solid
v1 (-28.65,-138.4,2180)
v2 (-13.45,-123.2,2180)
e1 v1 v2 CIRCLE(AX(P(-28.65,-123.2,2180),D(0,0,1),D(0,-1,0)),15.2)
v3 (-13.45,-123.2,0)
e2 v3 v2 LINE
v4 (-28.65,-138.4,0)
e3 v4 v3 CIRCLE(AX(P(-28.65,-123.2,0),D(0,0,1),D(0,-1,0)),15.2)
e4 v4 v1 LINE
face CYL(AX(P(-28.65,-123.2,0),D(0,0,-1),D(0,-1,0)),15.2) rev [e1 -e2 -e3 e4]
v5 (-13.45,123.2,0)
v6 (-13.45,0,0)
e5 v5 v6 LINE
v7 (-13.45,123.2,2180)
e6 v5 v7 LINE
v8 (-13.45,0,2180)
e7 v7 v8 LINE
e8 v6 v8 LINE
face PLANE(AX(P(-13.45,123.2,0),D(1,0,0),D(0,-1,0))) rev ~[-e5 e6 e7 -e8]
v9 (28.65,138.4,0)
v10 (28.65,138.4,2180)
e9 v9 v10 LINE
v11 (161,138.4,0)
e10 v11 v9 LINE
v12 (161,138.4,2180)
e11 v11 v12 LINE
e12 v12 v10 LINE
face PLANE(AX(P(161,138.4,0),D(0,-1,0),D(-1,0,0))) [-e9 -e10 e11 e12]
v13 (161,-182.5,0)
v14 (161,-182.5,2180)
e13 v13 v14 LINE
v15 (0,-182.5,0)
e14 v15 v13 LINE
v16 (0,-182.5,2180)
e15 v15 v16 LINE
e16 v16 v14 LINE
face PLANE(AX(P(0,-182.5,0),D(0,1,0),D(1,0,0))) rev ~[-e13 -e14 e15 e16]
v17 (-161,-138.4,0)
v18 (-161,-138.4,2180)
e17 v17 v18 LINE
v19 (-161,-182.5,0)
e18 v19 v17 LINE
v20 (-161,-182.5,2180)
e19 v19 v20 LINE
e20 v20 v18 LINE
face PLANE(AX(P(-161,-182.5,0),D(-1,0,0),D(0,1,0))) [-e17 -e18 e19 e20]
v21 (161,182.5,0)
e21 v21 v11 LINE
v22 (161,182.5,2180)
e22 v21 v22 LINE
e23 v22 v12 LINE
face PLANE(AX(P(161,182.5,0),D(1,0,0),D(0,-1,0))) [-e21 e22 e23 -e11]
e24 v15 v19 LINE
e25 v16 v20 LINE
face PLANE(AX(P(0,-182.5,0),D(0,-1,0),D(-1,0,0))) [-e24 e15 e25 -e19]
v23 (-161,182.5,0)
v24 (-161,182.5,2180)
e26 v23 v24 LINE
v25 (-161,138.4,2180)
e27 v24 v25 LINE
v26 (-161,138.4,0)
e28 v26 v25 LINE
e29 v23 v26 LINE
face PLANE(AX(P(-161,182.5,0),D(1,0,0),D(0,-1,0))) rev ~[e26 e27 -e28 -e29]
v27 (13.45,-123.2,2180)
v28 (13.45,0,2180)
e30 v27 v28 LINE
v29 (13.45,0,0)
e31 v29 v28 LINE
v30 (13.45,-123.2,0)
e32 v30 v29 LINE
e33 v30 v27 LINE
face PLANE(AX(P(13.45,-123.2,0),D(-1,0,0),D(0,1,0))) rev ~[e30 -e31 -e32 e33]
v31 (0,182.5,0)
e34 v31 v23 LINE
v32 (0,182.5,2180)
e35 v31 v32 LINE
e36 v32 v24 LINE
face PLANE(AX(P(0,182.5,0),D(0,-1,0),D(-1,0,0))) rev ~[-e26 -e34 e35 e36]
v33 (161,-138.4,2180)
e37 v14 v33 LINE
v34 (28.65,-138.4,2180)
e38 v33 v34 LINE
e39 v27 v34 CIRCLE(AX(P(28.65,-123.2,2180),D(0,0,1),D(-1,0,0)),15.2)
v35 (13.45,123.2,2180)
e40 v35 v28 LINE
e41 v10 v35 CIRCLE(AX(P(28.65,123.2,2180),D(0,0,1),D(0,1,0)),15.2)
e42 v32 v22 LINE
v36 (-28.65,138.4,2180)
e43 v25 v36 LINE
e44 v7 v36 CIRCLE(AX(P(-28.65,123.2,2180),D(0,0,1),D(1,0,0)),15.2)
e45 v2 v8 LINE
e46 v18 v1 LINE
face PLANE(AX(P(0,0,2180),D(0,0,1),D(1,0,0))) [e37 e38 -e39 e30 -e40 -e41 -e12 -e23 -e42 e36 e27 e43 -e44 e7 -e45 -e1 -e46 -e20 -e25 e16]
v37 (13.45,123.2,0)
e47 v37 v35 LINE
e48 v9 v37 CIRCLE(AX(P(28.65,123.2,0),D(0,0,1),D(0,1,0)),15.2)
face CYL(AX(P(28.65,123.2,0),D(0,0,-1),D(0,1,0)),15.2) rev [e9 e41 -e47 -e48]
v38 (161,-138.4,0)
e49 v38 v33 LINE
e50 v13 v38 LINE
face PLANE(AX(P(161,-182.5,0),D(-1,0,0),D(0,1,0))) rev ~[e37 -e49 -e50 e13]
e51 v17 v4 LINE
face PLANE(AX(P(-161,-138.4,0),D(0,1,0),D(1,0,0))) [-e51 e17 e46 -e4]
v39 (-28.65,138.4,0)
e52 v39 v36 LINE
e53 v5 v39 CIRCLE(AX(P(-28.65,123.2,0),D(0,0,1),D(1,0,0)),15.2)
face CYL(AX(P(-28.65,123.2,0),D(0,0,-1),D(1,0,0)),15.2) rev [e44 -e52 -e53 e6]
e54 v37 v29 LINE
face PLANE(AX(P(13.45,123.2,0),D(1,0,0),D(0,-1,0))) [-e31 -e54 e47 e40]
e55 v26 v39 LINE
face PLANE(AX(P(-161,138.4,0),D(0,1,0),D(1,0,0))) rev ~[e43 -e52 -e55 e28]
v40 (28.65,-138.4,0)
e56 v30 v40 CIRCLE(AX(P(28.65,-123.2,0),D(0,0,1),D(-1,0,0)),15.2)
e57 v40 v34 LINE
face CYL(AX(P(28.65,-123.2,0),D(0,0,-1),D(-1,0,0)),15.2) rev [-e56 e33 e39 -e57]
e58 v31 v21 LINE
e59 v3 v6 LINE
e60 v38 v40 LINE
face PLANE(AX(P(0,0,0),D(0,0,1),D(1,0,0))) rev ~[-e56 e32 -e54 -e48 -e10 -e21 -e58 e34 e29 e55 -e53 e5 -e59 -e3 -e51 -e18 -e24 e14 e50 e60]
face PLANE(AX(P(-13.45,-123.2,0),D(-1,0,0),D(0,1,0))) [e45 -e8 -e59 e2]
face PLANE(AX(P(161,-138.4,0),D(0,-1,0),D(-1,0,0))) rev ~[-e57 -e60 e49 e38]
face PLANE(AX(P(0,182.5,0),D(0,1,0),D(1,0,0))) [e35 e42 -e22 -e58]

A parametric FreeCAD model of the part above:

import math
import FreeCAD as App
import Part
import Sketcher

V = App.Vector
Q = App.Units.Quantity

doc = App.newDocument("Part")
body = doc.addObject("PartDesign::Body", "Body")

sketch1 = body.newObject("Sketcher::SketchObject", "Sketch")
sketch1.AttachmentSupport = (doc.getObject("XY_Plane"), [""])
sketch1.MapMode = "FlatFace"
sketch1.addGeometry([
    Part.LineSegment(V(-161, -138, 0), V(-161, -182, 0)),
    Part.LineSegment(V(-161, -182, 0), V(161, -182, 0)),
    Part.LineSegment(V(161, -182, 0), V(161, -138, 0)),
    Part.LineSegment(V(161, -138, 0), V(29, -138, 0)),
    Part.ArcOfCircle(Part.Circle(V(29, -123, 0), V(0, 0, 1), 15), math.radians(180), math.radians(270)),
    Part.LineSegment(V(13, -123, 0), V(13, 123, 0)),
    Part.ArcOfCircle(Part.Circle(V(29, 123, 0), V(0, 0, 1), 15), math.radians(90), math.radians(180)),
    Part.LineSegment(V(29, 138, 0), V(161, 138, 0)),
    Part.LineSegment(V(161, 138, 0), V(161, 182, 0)),
    Part.LineSegment(V(161, 182, 0), V(-161, 182, 0)),
    Part.LineSegment(V(-161, 182, 0), V(-161, 138, 0)),
    Part.LineSegment(V(-161, 138, 0), V(-29, 138, 0)),
    Part.ArcOfCircle(Part.Circle(V(-29, 123, 0), V(0, 0, 1), 15), math.radians(0), math.radians(90)),
    Part.LineSegment(V(-13, 123, 0), V(-13, -123, 0)),
    Part.ArcOfCircle(Part.Circle(V(-29, -123, 0), V(0, 0, 1), 15), math.radians(-90), math.radians(0)),
    Part.LineSegment(V(-29, -138, 0), V(-161, -138, 0)),
], False)
sketch1.addConstraint([
    Sketcher.Constraint("Coincident", 0, 2, 1, 1),
    Sketcher.Constraint("Coincident", 1, 2, 2, 1),
    Sketcher.Constraint("Coincident", 2, 2, 3, 1),
    Sketcher.Constraint("Tangent", 3, 2, 4, 2),
    Sketcher.Constraint("Tangent", 4, 1, 5, 1),
    Sketcher.Constraint("Tangent", 5, 2, 6, 2),
    Sketcher.Constraint("Tangent", 6, 1, 7, 1),
    Sketcher.Constraint("Coincident", 7, 2, 8, 1),
    Sketcher.Constraint("Coincident", 8, 2, 9, 1),
    Sketcher.Constraint("Coincident", 9, 2, 10, 1),
    Sketcher.Constraint("Coincident", 10, 2, 11, 1),
    Sketcher.Constraint("Tangent", 11, 2, 12, 2),
    Sketcher.Constraint("Tangent", 12, 1, 13, 1),
    Sketcher.Constraint("Tangent", 13, 2, 14, 2),
    Sketcher.Constraint("Tangent", 14, 1, 15, 1),
    Sketcher.Constraint("Coincident", 15, 2, 0, 1),
    Sketcher.Constraint("Vertical", 0),
    Sketcher.Constraint("Horizontal", 1),
    Sketcher.Constraint("Vertical", 2),
    Sketcher.Constraint("Horizontal", 3),
    Sketcher.Constraint("Vertical", 5),
    Sketcher.Constraint("Horizontal", 7),
    Sketcher.Constraint("Vertical", 8),
    Sketcher.Constraint("Horizontal", 9),
    Sketcher.Constraint("Vertical", 10),
    Sketcher.Constraint("Horizontal", 11),
    Sketcher.Constraint("Vertical", 13),
    Sketcher.Constraint("Horizontal", 15),
    Sketcher.Constraint("Equal", 4, 6),
    Sketcher.Constraint("Equal", 6, 12),
    Sketcher.Constraint("Equal", 12, 14),
    Sketcher.Constraint("Symmetric", 4, 3, 12, 3, -1, 1),
    Sketcher.Constraint("Symmetric", 0, 2, 8, 2, -1, 1),
    Sketcher.Constraint("Symmetric", 7, 2, 10, 2, -2),
    Sketcher.Constraint("Symmetric", 2, 2, 15, 2, -2),
    Sketcher.Constraint("Radius", 4, Q("15.2 mm")),
    Sketcher.Constraint("DistanceY", 0, 2, 0, 1, Q("44.1 mm")),
    Sketcher.Constraint("DistanceX", 0, 2, -1, 1, Q("161 mm")),
    Sketcher.Constraint("DistanceY", 0, 2, -1, 1, Q("182.5 mm")),
    Sketcher.Constraint("DistanceX", -1, 1, 4, 1, Q("13.45 mm")),
])
pad1 = body.newObject("PartDesign::Pad", "Pad")
pad1.Profile = sketch1
pad1.Length = 2180

doc.recompute()
